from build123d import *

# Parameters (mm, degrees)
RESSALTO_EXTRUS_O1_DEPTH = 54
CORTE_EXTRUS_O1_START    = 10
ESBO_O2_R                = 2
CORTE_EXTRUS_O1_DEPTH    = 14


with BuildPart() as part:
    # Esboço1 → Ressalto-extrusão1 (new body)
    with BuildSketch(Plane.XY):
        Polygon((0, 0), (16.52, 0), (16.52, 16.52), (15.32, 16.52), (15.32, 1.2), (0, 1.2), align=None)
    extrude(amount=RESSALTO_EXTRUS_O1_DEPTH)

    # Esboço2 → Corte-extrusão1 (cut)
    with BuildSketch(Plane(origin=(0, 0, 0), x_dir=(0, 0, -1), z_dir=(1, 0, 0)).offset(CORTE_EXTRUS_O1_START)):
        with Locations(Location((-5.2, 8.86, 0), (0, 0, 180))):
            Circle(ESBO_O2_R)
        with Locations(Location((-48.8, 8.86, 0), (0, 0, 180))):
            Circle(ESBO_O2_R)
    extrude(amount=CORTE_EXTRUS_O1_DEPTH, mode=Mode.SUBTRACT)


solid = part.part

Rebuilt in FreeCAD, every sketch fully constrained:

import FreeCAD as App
import Part
import Sketcher

doc = App.newDocument("Part")
body = doc.addObject("PartDesign::Body", "Body")

# Sketch on XY plane
sketch1 = body.newObject("Sketcher::SketchObject", "Sketch")
sketch1.AttachmentSupport = (doc.getObject("XY_Plane"), [""])
sketch1.MapMode = "FlatFace"
sketch1.addGeometry(Part.LineSegment(App.Vector(0, 0, 0), App.Vector(16.52, 0, 0)), False)
sketch1.addGeometry(Part.LineSegment(App.Vector(16.52, 0, 0), App.Vector(16.52, 16.52, 0)), False)
sketch1.addGeometry(Part.LineSegment(App.Vector(16.52, 16.52, 0), App.Vector(15.32, 16.52, 0)), False)
sketch1.addGeometry(Part.LineSegment(App.Vector(15.32, 16.52, 0), App.Vector(15.32, 1.2, 0)), False)
sketch1.addGeometry(Part.LineSegment(App.Vector(15.32, 1.2, 0), App.Vector(0, 1.2, 0)), False)
sketch1.addGeometry(Part.LineSegment(App.Vector(0, 1.2, 0), App.Vector(0, 0, 0)), False)
sketch1.addConstraint(Sketcher.Constraint("Coincident", 0, 2, 1, 1))
sketch1.addConstraint(Sketcher.Constraint("Coincident", 1, 2, 2, 1))
sketch1.addConstraint(Sketcher.Constraint("Coincident", 2, 2, 3, 1))
sketch1.addConstraint(Sketcher.Constraint("Coincident", 3, 2, 4, 1))
sketch1.addConstraint(Sketcher.Constraint("Coincident", 4, 2, 5, 1))
sketch1.addConstraint(Sketcher.Constraint("Coincident", 5, 2, 0, 1))
sketch1.addConstraint(Sketcher.Constraint("Horizontal", 0))
sketch1.addConstraint(Sketcher.Constraint("Vertical", 1))
sketch1.addConstraint(Sketcher.Constraint("Horizontal", 2))
sketch1.addConstraint(Sketcher.Constraint("Vertical", 3))
sketch1.addConstraint(Sketcher.Constraint("Horizontal", 4))
sketch1.addConstraint(Sketcher.Constraint("Vertical", 5))
sketch1.addConstraint(Sketcher.Constraint("Coincident", 5, 2, -1, 1))
sketch1.addConstraint(Sketcher.Constraint("Equal", 0, 1))
sketch1.addConstraint(Sketcher.Constraint("Equal", 4, 3))
sketch1.addConstraint(Sketcher.Constraint("DistanceX", 2, 2, 2, 1, 1.2))
sketch1.addConstraint(Sketcher.Constraint("DistanceX", 0, 1, 0, 2, 16.52))
pad1 = body.newObject("PartDesign::Pad", "Pad")
pad1.Profile = sketch1
pad1.Length = 54

# Sketch on YZ plane
sketch2 = body.newObject("Sketcher::SketchObject", "Sketch001")
sketch2.AttachmentSupport = (doc.getObject("YZ_Plane"), [""])
sketch2.MapMode = "FlatFace"
sketch2.AttachmentOffset = App.Placement(App.Vector(0, 0, 10), App.Rotation())
sketch2.addGeometry(Part.Circle(App.Vector(8.86, 5.2, 0), App.Vector(0, 0, 1), 2), False)
sketch2.addGeometry(Part.Circle(App.Vector(8.86, 48.8, 0), App.Vector(0, 0, 1), 2), False)
sketch2.addConstraint(Sketcher.Constraint("Equal", 0, 1))
sketch2.addConstraint(Sketcher.Constraint("Vertical", 0, 3, 1, 3))
sketch2.addConstraint(Sketcher.Constraint("Diameter", 0, 4.0))
sketch2.addConstraint(Sketcher.Constraint("DistanceY", -1, 1, 0, 3, 5.2))
sketch2.addConstraint(Sketcher.Constraint("DistanceY", -1, 1, 1, 3, 48.8))
sketch2.addConstraint(Sketcher.Constraint("DistanceX", -1, 1, 0, 3, 8.86))
pocket1 = body.newObject("PartDesign::Pocket", "Pocket")
pocket1.Profile = sketch2
pocket1.Length = 14
pocket1.Reversed = True

doc.recompute()
